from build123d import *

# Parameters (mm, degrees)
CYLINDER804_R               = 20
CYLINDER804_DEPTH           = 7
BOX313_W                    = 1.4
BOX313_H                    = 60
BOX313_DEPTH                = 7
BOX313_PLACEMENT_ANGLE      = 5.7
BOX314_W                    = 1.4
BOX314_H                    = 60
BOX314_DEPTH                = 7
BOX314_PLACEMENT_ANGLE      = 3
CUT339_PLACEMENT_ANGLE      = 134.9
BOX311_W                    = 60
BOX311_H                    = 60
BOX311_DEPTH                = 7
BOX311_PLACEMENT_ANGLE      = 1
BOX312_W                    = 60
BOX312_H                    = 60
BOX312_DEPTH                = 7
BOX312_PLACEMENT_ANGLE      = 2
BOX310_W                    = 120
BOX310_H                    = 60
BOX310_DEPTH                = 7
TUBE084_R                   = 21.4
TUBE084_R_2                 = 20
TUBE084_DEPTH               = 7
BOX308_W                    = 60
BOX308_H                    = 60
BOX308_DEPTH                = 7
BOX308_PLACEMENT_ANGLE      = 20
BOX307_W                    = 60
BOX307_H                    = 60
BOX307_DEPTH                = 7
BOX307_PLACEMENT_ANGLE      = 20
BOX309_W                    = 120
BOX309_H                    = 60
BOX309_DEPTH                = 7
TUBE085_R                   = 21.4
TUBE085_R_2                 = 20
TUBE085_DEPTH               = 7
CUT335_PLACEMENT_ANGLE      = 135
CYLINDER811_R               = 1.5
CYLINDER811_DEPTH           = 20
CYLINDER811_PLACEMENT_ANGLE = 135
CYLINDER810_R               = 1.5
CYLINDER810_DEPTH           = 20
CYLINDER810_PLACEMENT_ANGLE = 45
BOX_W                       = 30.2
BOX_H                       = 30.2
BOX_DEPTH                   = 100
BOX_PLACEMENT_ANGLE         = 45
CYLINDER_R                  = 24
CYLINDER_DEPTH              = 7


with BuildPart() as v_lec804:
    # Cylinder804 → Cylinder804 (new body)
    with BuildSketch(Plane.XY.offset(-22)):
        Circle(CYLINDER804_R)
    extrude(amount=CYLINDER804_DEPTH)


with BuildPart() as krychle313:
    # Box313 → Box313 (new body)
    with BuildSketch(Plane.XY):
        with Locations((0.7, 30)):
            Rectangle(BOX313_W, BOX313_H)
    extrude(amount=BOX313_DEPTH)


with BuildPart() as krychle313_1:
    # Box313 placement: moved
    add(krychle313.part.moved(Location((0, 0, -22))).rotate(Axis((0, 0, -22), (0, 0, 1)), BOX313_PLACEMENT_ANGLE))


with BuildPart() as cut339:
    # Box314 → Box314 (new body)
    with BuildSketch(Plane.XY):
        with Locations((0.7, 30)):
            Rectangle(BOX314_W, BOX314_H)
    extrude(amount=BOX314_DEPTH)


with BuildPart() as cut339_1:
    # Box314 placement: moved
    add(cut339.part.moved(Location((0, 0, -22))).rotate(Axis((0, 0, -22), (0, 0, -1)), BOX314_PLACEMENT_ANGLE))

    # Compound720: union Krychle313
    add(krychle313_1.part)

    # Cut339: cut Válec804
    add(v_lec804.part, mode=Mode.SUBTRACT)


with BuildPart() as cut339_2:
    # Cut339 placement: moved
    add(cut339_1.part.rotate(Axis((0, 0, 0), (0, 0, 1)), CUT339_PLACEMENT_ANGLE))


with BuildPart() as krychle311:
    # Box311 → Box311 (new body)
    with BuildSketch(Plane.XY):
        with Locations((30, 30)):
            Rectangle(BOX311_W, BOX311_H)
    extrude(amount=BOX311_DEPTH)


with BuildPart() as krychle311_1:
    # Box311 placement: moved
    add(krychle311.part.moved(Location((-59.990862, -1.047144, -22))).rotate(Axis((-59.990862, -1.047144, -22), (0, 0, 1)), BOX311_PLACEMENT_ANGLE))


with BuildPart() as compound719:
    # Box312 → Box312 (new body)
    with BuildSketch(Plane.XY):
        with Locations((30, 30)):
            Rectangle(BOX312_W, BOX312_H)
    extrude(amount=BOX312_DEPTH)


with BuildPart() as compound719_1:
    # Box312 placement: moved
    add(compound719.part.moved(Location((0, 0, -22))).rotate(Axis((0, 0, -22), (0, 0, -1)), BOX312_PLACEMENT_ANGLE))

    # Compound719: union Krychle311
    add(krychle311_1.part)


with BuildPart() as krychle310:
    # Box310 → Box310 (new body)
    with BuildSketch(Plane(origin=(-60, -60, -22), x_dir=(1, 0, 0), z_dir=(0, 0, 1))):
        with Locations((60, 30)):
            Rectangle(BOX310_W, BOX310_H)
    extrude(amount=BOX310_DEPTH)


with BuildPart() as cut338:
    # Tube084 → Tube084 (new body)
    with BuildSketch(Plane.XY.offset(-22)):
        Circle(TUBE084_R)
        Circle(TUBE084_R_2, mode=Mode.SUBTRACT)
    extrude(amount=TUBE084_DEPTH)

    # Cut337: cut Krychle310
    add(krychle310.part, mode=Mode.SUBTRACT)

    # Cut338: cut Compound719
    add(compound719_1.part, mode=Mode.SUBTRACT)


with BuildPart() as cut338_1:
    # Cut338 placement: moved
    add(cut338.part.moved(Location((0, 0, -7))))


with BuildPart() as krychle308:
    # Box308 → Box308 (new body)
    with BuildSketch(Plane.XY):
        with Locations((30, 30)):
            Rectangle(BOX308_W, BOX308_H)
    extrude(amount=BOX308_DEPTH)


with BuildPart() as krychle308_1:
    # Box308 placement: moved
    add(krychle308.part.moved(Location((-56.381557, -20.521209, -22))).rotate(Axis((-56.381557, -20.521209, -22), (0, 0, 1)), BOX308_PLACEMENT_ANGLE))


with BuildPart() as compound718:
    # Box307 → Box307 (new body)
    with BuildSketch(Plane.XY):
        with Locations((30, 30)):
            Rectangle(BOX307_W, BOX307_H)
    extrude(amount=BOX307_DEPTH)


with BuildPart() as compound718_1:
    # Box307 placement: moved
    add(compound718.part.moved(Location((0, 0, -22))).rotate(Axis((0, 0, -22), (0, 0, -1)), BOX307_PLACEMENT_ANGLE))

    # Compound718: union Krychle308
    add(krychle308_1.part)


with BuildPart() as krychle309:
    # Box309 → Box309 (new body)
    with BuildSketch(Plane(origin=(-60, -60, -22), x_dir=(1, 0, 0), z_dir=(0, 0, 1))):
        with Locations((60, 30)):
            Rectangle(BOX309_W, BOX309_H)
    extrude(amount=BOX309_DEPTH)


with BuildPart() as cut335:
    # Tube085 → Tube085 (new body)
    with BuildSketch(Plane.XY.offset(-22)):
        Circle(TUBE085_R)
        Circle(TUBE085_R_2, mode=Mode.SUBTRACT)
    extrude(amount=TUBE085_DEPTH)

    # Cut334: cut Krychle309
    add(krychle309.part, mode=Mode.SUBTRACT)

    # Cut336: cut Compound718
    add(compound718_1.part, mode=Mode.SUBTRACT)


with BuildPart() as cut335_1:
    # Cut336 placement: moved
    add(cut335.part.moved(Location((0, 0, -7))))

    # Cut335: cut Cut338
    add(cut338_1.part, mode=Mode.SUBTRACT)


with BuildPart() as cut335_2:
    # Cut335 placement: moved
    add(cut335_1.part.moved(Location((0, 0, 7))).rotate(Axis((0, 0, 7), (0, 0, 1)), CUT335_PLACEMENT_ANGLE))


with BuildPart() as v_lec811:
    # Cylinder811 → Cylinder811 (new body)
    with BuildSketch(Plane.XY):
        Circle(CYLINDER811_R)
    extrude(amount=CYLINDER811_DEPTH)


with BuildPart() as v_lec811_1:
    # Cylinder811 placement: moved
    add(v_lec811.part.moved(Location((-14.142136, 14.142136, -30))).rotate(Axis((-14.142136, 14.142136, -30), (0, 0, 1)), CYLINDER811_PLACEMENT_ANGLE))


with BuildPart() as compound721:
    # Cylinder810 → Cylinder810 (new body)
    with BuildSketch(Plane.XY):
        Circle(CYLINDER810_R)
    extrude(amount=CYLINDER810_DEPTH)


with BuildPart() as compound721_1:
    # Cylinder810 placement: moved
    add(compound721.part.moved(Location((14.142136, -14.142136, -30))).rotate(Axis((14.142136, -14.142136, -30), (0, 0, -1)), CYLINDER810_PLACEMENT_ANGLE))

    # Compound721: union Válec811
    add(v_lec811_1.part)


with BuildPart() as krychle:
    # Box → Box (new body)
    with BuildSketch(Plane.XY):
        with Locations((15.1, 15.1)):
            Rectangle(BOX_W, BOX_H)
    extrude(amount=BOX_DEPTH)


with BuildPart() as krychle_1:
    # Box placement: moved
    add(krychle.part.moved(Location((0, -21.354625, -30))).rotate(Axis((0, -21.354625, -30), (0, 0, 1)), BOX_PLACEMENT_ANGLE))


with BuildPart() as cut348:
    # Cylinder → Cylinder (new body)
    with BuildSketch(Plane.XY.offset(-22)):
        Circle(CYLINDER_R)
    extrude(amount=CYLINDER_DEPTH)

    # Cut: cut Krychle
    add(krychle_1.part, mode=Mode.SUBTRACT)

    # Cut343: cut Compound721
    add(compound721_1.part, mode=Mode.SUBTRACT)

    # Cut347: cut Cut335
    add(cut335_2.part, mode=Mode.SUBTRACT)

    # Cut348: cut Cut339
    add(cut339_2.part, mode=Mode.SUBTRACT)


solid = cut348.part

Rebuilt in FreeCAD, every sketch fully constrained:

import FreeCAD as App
import Part
import Sketcher

V = App.Vector
Q = App.Units.Quantity


def add_polygon(sketch, points):
    """Adds a closed chain of lines whose ends are joined by coincident constraints."""
    first, n = sketch.GeometryCount, len(points)
    for a, b in zip(points, points[1:] + points[:1]):
        sketch.addGeometry(Part.LineSegment(App.Vector(*a, 0), App.Vector(*b, 0)), False)
    for i in range(n):
        sketch.addConstraint(Sketcher.Constraint("Coincident", first + i, 2, first + (i + 1) % n, 1))

doc = App.newDocument("Part")
body = doc.addObject("PartDesign::Body", "Body")

# Sketch on XY plane
sketch1 = body.newObject("Sketcher::SketchObject", "Sketch")
sketch1.AttachmentSupport = (doc.getObject("XY_Plane"), [""])
sketch1.MapMode = "FlatFace"
sketch1.AttachmentOffset = App.Placement(V(0, 0, -22), App.Rotation())
sketch1.addGeometry(Part.Circle(V(0, 0, 0), V(0, 0, 1), 20), False)
sketch1.addConstraint(Sketcher.Constraint("Coincident", 0, 3, -1, 1))
sketch1.addConstraint(Sketcher.Constraint("Diameter", 0, Q("40 mm")))
pad1 = body.newObject("PartDesign::Pad", "Pad")
pad1.Profile = sketch1
pad1.Length = 7
body2 = doc.addObject("PartDesign::Body", "Body001")

# Sketch on XY plane
sketch2 = body2.newObject("Sketcher::SketchObject", "Sketch001")
sketch2.AttachmentSupport = (doc.getObject("XY_Plane001"), [""])
sketch2.MapMode = "FlatFace"
add_polygon(sketch2, [(0, 60), (0, 0), (1.4, 0), (1.4, 60)])  # lines 0-3
sketch2.addConstraint(Sketcher.Constraint("Vertical", 0))
sketch2.addConstraint(Sketcher.Constraint("Horizontal", 1))
sketch2.addConstraint(Sketcher.Constraint("Vertical", 2))
sketch2.addConstraint(Sketcher.Constraint("Horizontal", 3))
sketch2.addConstraint(Sketcher.Constraint("Coincident", 0, 2, -1, 1))
sketch2.addConstraint(Sketcher.Constraint("DistanceY", 0, 2, 0, 1, Q("60 mm")))
sketch2.addConstraint(Sketcher.Constraint("DistanceX", 1, 1, 1, 2, Q("1.4 mm")))
pad2 = body2.newObject("PartDesign::Pad", "Pad001")
pad2.Profile = sketch2
pad2.Length = 7
body3 = doc.addObject("PartDesign::Body", "Body002")
doc.recompute()

body2.Placement = App.Placement(V(0, 0, -22), App.Rotation(V(0, 0, 1), 5.7))
boolean = body3.newObject("PartDesign::Boolean", "Boolean")
boolean.Type = "Fuse"
boolean.addObjects([body2])
body4 = doc.addObject("PartDesign::Body", "Body003")

# Sketch on XY plane
sketch3 = body4.newObject("Sketcher::SketchObject", "Sketch002")
sketch3.AttachmentSupport = (doc.getObject("XY_Plane003"), [""])
sketch3.MapMode = "FlatFace"
add_polygon(sketch3, [(0, 60), (0, 0), (1.4, 0), (1.4, 60)])  # lines 0-3
sketch3.addConstraint(Sketcher.Constraint("Vertical", 0))
sketch3.addConstraint(Sketcher.Constraint("Horizontal", 1))
sketch3.addConstraint(Sketcher.Constraint("Vertical", 2))
sketch3.addConstraint(Sketcher.Constraint("Horizontal", 3))
sketch3.addConstraint(Sketcher.Constraint("Coincident", 0, 2, -1, 1))
sketch3.addConstraint(Sketcher.Constraint("DistanceY", 0, 2, 0, 1, Q("60 mm")))
sketch3.addConstraint(Sketcher.Constraint("DistanceX", 1, 1, 1, 2, Q("1.4 mm")))
pad3 = body4.newObject("PartDesign::Pad", "Pad002")
pad3.Profile = sketch3
pad3.Length = 7
body5 = doc.addObject("PartDesign::Body", "Body004")
body5.AllowCompound = True
doc.recompute()

body4.Placement = App.Placement(V(0, 0, -22), App.Rotation(V(0, 0, -1), 3))
boolean2 = body5.newObject("PartDesign::Boolean", "Boolean001")
boolean2.Type = "Fuse"
boolean2.addObjects([body4])
doc.recompute()

boolean3 = body5.newObject("PartDesign::Boolean", "Boolean002")
boolean3.Type = "Fuse"
boolean3.addObjects([body3])
doc.recompute()

boolean4 = body5.newObject("PartDesign::Boolean", "Boolean003")
boolean4.Type = "Cut"
boolean4.addObjects([body])
body6 = doc.addObject("PartDesign::Body", "Body005")
body6.AllowCompound = True
doc.recompute()

body5.Placement = App.Placement(V(0, 0, 0), App.Rotation(V(0, 0, 1), 134.9))
boolean5 = body6.newObject("PartDesign::Boolean", "Boolean004")
boolean5.Type = "Fuse"
boolean5.addObjects([body5])
body7 = doc.addObject("PartDesign::Body", "Body006")

# Sketch on XY plane
sketch4 = body7.newObject("Sketcher::SketchObject", "Sketch003")
sketch4.AttachmentSupport = (doc.getObject("XY_Plane006"), [""])
sketch4.MapMode = "FlatFace"
add_polygon(sketch4, [(0, 60), (0, 0), (60, 0), (60, 60)])  # lines 0-3
sketch4.addConstraint(Sketcher.Constraint("Vertical", 0))
sketch4.addConstraint(Sketcher.Constraint("Horizontal", 1))
sketch4.addConstraint(Sketcher.Constraint("Vertical", 2))
sketch4.addConstraint(Sketcher.Constraint("Horizontal", 3))
sketch4.addConstraint(Sketcher.Constraint("Coincident", 0, 2, -1, 1))
sketch4.addConstraint(Sketcher.Constraint("Equal", 3, 0))
sketch4.addConstraint(Sketcher.Constraint("DistanceX", 1, 1, 1, 2, Q("60 mm")))
pad4 = body7.newObject("PartDesign::Pad", "Pad003")
pad4.Profile = sketch4
pad4.Length = 7
body8 = doc.addObject("PartDesign::Body", "Body007")
doc.recompute()

body7.Placement = App.Placement(V(-59.990862, -1.047144, -22), App.Rotation(V(0, 0, 1), 1))
boolean6 = body8.newObject("PartDesign::Boolean", "Boolean005")
boolean6.Type = "Fuse"
boolean6.addObjects([body7])
body9 = doc.addObject("PartDesign::Body", "Body008")

# Sketch on XY plane
sketch5 = body9.newObject("Sketcher::SketchObject", "Sketch004")
sketch5.AttachmentSupport = (doc.getObject("XY_Plane008"), [""])
sketch5.MapMode = "FlatFace"
add_polygon(sketch5, [(0, 60), (0, 0), (60, 0), (60, 60)])  # lines 0-3
sketch5.addConstraint(Sketcher.Constraint("Vertical", 0))
sketch5.addConstraint(Sketcher.Constraint("Horizontal", 1))
sketch5.addConstraint(Sketcher.Constraint("Vertical", 2))
sketch5.addConstraint(Sketcher.Constraint("Horizontal", 3))
sketch5.addConstraint(Sketcher.Constraint("Coincident", 0, 2, -1, 1))
sketch5.addConstraint(Sketcher.Constraint("Equal", 3, 0))
sketch5.addConstraint(Sketcher.Constraint("DistanceX", 1, 1, 1, 2, Q("60 mm")))
pad5 = body9.newObject("PartDesign::Pad", "Pad004")
pad5.Profile = sketch5
pad5.Length = 7
body10 = doc.addObject("PartDesign::Body", "Body009")
body10.AllowCompound = True
doc.recompute()

body9.Placement = App.Placement(V(0, 0, -22), App.Rotation(V(0, 0, -1), 2))
boolean7 = body10.newObject("PartDesign::Boolean", "Boolean006")
boolean7.Type = "Fuse"
boolean7.addObjects([body9])
doc.recompute()

boolean8 = body10.newObject("PartDesign::Boolean", "Boolean007")
boolean8.Type = "Fuse"
boolean8.addObjects([body8])
body11 = doc.addObject("PartDesign::Body", "Body010")

# Sketch on XY plane
sketch6 = body11.newObject("Sketcher::SketchObject", "Sketch005")
sketch6.AttachmentSupport = (doc.getObject("XY_Plane010"), [""])
sketch6.MapMode = "FlatFace"
sketch6.AttachmentOffset = App.Placement(V(0, 0, -22), App.Rotation())
add_polygon(sketch6, [(-60, 0), (-60, -60), (60, -60), (60, 0)])  # lines 0-3
sketch6.addConstraint(Sketcher.Constraint("Vertical", 0))
sketch6.addConstraint(Sketcher.Constraint("Horizontal", 1))
sketch6.addConstraint(Sketcher.Constraint("Vertical", 2))
sketch6.addConstraint(Sketcher.Constraint("Horizontal", 3))
sketch6.addConstraint(Sketcher.Constraint("Symmetric", 2, 2, 3, 2, -1, 1))
sketch6.addConstraint(Sketcher.Constraint("DistanceX", 1, 1, 1, 2, Q("120 mm")))
sketch6.addConstraint(Sketcher.Constraint("DistanceY", 0, 2, 0, 1, Q("60 mm")))
pad6 = body11.newObject("PartDesign::Pad", "Pad005")
pad6.Profile = sketch6
pad6.Length = 7
body12 = doc.addObject("PartDesign::Body", "Body011")

# Sketch on XY plane
sketch7 = body12.newObject("Sketcher::SketchObject", "Sketch006")
sketch7.AttachmentSupport = (doc.getObject("XY_Plane011"), [""])
sketch7.MapMode = "FlatFace"
sketch7.AttachmentOffset = App.Placement(V(0, 0, -22), App.Rotation())
sketch7.addGeometry(Part.Circle(V(0, 0, 0), V(0, 0, 1), 21.4), False)
sketch7.addGeometry(Part.Circle(V(0, 0, 0), V(0, 0, 1), 20), False)
sketch7.addConstraint(Sketcher.Constraint("Coincident", 0, 3, -1, 1))
sketch7.addConstraint(Sketcher.Constraint("Coincident", 1, 3, -1, 1))
sketch7.addConstraint(Sketcher.Constraint("Diameter", 1, Q("40 mm")))
sketch7.addConstraint(Sketcher.Constraint("Diameter", 0, Q("42.8 mm")))
pad7 = body12.newObject("PartDesign::Pad", "Pad006")
pad7.Profile = sketch7
pad7.Length = 7
doc.recompute()

boolean9 = body12.newObject("PartDesign::Boolean", "Boolean008")
boolean9.Type = "Cut"
boolean9.addObjects([body11])
doc.recompute()

boolean10 = body12.newObject("PartDesign::Boolean", "Boolean009")
boolean10.Type = "Cut"
boolean10.addObjects([body10])
body13 = doc.addObject("PartDesign::Body", "Body012")
doc.recompute()

body12.Placement = App.Placement(V(0, 0, -7), App.Rotation(V(0, 0, 1), 0))
boolean11 = body13.newObject("PartDesign::Boolean", "Boolean010")
boolean11.Type = "Fuse"
boolean11.addObjects([body12])
body14 = doc.addObject("PartDesign::Body", "Body013")

# Sketch on XY plane
sketch8 = body14.newObject("Sketcher::SketchObject", "Sketch007")
sketch8.AttachmentSupport = (doc.getObject("XY_Plane013"), [""])
sketch8.MapMode = "FlatFace"
add_polygon(sketch8, [(0, 60), (0, 0), (60, 0), (60, 60)])  # lines 0-3
sketch8.addConstraint(Sketcher.Constraint("Vertical", 0))
sketch8.addConstraint(Sketcher.Constraint("Horizontal", 1))
sketch8.addConstraint(Sketcher.Constraint("Vertical", 2))
sketch8.addConstraint(Sketcher.Constraint("Horizontal", 3))
sketch8.addConstraint(Sketcher.Constraint("Coincident", 0, 2, -1, 1))
sketch8.addConstraint(Sketcher.Constraint("Equal", 3, 0))
sketch8.addConstraint(Sketcher.Constraint("DistanceX", 1, 1, 1, 2, Q("60 mm")))
pad8 = body14.newObject("PartDesign::Pad", "Pad007")
pad8.Profile = sketch8
pad8.Length = 7
body15 = doc.addObject("PartDesign::Body", "Body014")
doc.recompute()

body14.Placement = App.Placement(V(-56.381557, -20.521209, -22), App.Rotation(V(0, 0, 1), 20))
boolean12 = body15.newObject("PartDesign::Boolean", "Boolean011")
boolean12.Type = "Fuse"
boolean12.addObjects([body14])
body16 = doc.addObject("PartDesign::Body", "Body015")

# Sketch on XY plane
sketch9 = body16.newObject("Sketcher::SketchObject", "Sketch008")
sketch9.AttachmentSupport = (doc.getObject("XY_Plane015"), [""])
sketch9.MapMode = "FlatFace"
add_polygon(sketch9, [(0, 60), (0, 0), (60, 0), (60, 60)])  # lines 0-3
sketch9.addConstraint(Sketcher.Constraint("Vertical", 0))
sketch9.addConstraint(Sketcher.Constraint("Horizontal", 1))
sketch9.addConstraint(Sketcher.Constraint("Vertical", 2))
sketch9.addConstraint(Sketcher.Constraint("Horizontal", 3))
sketch9.addConstraint(Sketcher.Constraint("Coincident", 0, 2, -1, 1))
sketch9.addConstraint(Sketcher.Constraint("Equal", 3, 0))
sketch9.addConstraint(Sketcher.Constraint("DistanceX", 1, 1, 1, 2, Q("60 mm")))
pad9 = body16.newObject("PartDesign::Pad", "Pad008")
pad9.Profile = sketch9
pad9.Length = 7
body17 = doc.addObject("PartDesign::Body", "Body016")
body17.AllowCompound = True
doc.recompute()

body16.Placement = App.Placement(V(0, 0, -22), App.Rotation(V(0, 0, -1), 20))
boolean13 = body17.newObject("PartDesign::Boolean", "Boolean012")
boolean13.Type = "Fuse"
boolean13.addObjects([body16])
doc.recompute()

boolean14 = body17.newObject("PartDesign::Boolean", "Boolean013")
boolean14.Type = "Fuse"
boolean14.addObjects([body15])
body18 = doc.addObject("PartDesign::Body", "Body017")

# Sketch on XY plane
sketch10 = body18.newObject("Sketcher::SketchObject", "Sketch009")
sketch10.AttachmentSupport = (doc.getObject("XY_Plane017"), [""])
sketch10.MapMode = "FlatFace"
sketch10.AttachmentOffset = App.Placement(V(0, 0, -22), App.Rotation())
add_polygon(sketch10, [(-60, 0), (-60, -60), (60, -60), (60, 0)])  # lines 0-3
sketch10.addConstraint(Sketcher.Constraint("Vertical", 0))
sketch10.addConstraint(Sketcher.Constraint("Horizontal", 1))
sketch10.addConstraint(Sketcher.Constraint("Vertical", 2))
sketch10.addConstraint(Sketcher.Constraint("Horizontal", 3))
sketch10.addConstraint(Sketcher.Constraint("Symmetric", 2, 2, 3, 2, -1, 1))
sketch10.addConstraint(Sketcher.Constraint("DistanceX", 1, 1, 1, 2, Q("120 mm")))
sketch10.addConstraint(Sketcher.Constraint("DistanceY", 0, 2, 0, 1, Q("60 mm")))
pad10 = body18.newObject("PartDesign::Pad", "Pad009")
pad10.Profile = sketch10
pad10.Length = 7
body19 = doc.addObject("PartDesign::Body", "Body018")

# Sketch on XY plane
sketch11 = body19.newObject("Sketcher::SketchObject", "Sketch010")
sketch11.AttachmentSupport = (doc.getObject("XY_Plane018"), [""])
sketch11.MapMode = "FlatFace"
sketch11.AttachmentOffset = App.Placement(V(0, 0, -22), App.Rotation())
sketch11.addGeometry(Part.Circle(V(0, 0, 0), V(0, 0, 1), 21.4), False)
sketch11.addGeometry(Part.Circle(V(0, 0, 0), V(0, 0, 1), 20), False)
sketch11.addConstraint(Sketcher.Constraint("Coincident", 0, 3, -1, 1))
sketch11.addConstraint(Sketcher.Constraint("Coincident", 1, 3, -1, 1))
sketch11.addConstraint(Sketcher.Constraint("Diameter", 1, Q("40 mm")))
sketch11.addConstraint(Sketcher.Constraint("Diameter", 0, Q("42.8 mm")))
pad11 = body19.newObject("PartDesign::Pad", "Pad010")
pad11.Profile = sketch11
pad11.Length = 7
doc.recompute()

boolean15 = body19.newObject("PartDesign::Boolean", "Boolean014")
boolean15.Type = "Cut"
boolean15.addObjects([body18])
doc.recompute()

boolean16 = body19.newObject("PartDesign::Boolean", "Boolean015")
boolean16.Type = "Cut"
boolean16.addObjects([body17])
body20 = doc.addObject("PartDesign::Body", "Body019")
body20.AllowCompound = True
doc.recompute()

body19.Placement = App.Placement(V(0, 0, -7), App.Rotation(V(0, 0, 1), 0))
boolean17 = body20.newObject("PartDesign::Boolean", "Boolean016")
boolean17.Type = "Fuse"
boolean17.addObjects([body19])
doc.recompute()

boolean18 = body20.newObject("PartDesign::Boolean", "Boolean017")
boolean18.Type = "Cut"
boolean18.addObjects([body13])
body21 = doc.addObject("PartDesign::Body", "Body020")
body21.AllowCompound = True
doc.recompute()

body20.Placement = App.Placement(V(0, 0, 7), App.Rotation(V(0, 0, 1), 135))
boolean19 = body21.newObject("PartDesign::Boolean", "Boolean018")
boolean19.Type = "Fuse"
boolean19.addObjects([body20])
body22 = doc.addObject("PartDesign::Body", "Body021")

# Sketch on XY plane
sketch12 = body22.newObject("Sketcher::SketchObject", "Sketch011")
sketch12.AttachmentSupport = (doc.getObject("XY_Plane021"), [""])
sketch12.MapMode = "FlatFace"
sketch12.addGeometry(Part.Circle(V(0, 0, 0), V(0, 0, 1), 1.5), False)
sketch12.addConstraint(Sketcher.Constraint("Coincident", 0, 3, -1, 1))
sketch12.addConstraint(Sketcher.Constraint("Diameter", 0, Q("3 mm")))
pad12 = body22.newObject("PartDesign::Pad", "Pad011")
pad12.Profile = sketch12
pad12.Length = 20
body23 = doc.addObject("PartDesign::Body", "Body022")
doc.recompute()

body22.Placement = App.Placement(V(-14.142136, 14.142136, -30), App.Rotation(V(0, 0, 1), 135))
boolean20 = body23.newObject("PartDesign::Boolean", "Boolean019")
boolean20.Type = "Fuse"
boolean20.addObjects([body22])
body24 = doc.addObject("PartDesign::Body", "Body023")

# Sketch on XY plane
sketch13 = body24.newObject("Sketcher::SketchObject", "Sketch012")
sketch13.AttachmentSupport = (doc.getObject("XY_Plane023"), [""])
sketch13.MapMode = "FlatFace"
sketch13.addGeometry(Part.Circle(V(0, 0, 0), V(0, 0, 1), 1.5), False)
sketch13.addConstraint(Sketcher.Constraint("Coincident", 0, 3, -1, 1))
sketch13.addConstraint(Sketcher.Constraint("Diameter", 0, Q("3 mm")))
pad13 = body24.newObject("PartDesign::Pad", "Pad012")
pad13.Profile = sketch13
pad13.Length = 20
body25 = doc.addObject("PartDesign::Body", "Body024")
body25.AllowCompound = True
doc.recompute()

body24.Placement = App.Placement(V(14.142136, -14.142136, -30), App.Rotation(V(0, 0, -1), 45))
boolean21 = body25.newObject("PartDesign::Boolean", "Boolean020")
boolean21.Type = "Fuse"
boolean21.addObjects([body24])
doc.recompute()

boolean22 = body25.newObject("PartDesign::Boolean", "Boolean021")
boolean22.Type = "Fuse"
boolean22.addObjects([body23])
body26 = doc.addObject("PartDesign::Body", "Body025")

# Sketch on XY plane
sketch14 = body26.newObject("Sketcher::SketchObject", "Sketch013")
sketch14.AttachmentSupport = (doc.getObject("XY_Plane025"), [""])
sketch14.MapMode = "FlatFace"
add_polygon(sketch14, [(0, 30.2), (0, 0), (30.2, 0), (30.2, 30.2)])  # lines 0-3
sketch14.addConstraint(Sketcher.Constraint("Vertical", 0))
sketch14.addConstraint(Sketcher.Constraint("Horizontal", 1))
sketch14.addConstraint(Sketcher.Constraint("Vertical", 2))
sketch14.addConstraint(Sketcher.Constraint("Horizontal", 3))
sketch14.addConstraint(Sketcher.Constraint("Coincident", 0, 2, -1, 1))
sketch14.addConstraint(Sketcher.Constraint("Equal", 3, 0))
sketch14.addConstraint(Sketcher.Constraint("DistanceX", 1, 1, 1, 2, Q("30.2 mm")))
pad14 = body26.newObject("PartDesign::Pad", "Pad013")
pad14.Profile = sketch14
pad14.Length = 100
body27 = doc.addObject("PartDesign::Body", "Body026")
doc.recompute()

body26.Placement = App.Placement(V(0, -21.354625, -30), App.Rotation(V(0, 0, 1), 45))
boolean23 = body27.newObject("PartDesign::Boolean", "Boolean022")
boolean23.Type = "Fuse"
boolean23.addObjects([body26])
body28 = doc.addObject("PartDesign::Body", "Body027")

# Sketch on XY plane
sketch15 = body28.newObject("Sketcher::SketchObject", "Sketch014")
sketch15.AttachmentSupport = (doc.getObject("XY_Plane027"), [""])
sketch15.MapMode = "FlatFace"
sketch15.AttachmentOffset = App.Placement(V(0, 0, -22), App.Rotation())
sketch15.addGeometry(Part.Circle(V(0, 0, 0), V(0, 0, 1), 24), False)
sketch15.addConstraint(Sketcher.Constraint("Coincident", 0, 3, -1, 1))
sketch15.addConstraint(Sketcher.Constraint("Diameter", 0, Q("48 mm")))
pad15 = body28.newObject("PartDesign::Pad", "Pad014")
pad15.Profile = sketch15
pad15.Length = 7
doc.recompute()

boolean24 = body28.newObject("PartDesign::Boolean", "Boolean023")
boolean24.Type = "Cut"
boolean24.addObjects([body27])
doc.recompute()

boolean25 = body28.newObject("PartDesign::Boolean", "Boolean024")
boolean25.Type = "Cut"
boolean25.addObjects([body25])
doc.recompute()

boolean26 = body28.newObject("PartDesign::Boolean", "Boolean025")
boolean26.Type = "Cut"
boolean26.addObjects([body21])
doc.recompute()

boolean27 = body28.newObject("PartDesign::Boolean", "Boolean026")
boolean27.Type = "Cut"
boolean27.addObjects([body6])

doc.recompute()
